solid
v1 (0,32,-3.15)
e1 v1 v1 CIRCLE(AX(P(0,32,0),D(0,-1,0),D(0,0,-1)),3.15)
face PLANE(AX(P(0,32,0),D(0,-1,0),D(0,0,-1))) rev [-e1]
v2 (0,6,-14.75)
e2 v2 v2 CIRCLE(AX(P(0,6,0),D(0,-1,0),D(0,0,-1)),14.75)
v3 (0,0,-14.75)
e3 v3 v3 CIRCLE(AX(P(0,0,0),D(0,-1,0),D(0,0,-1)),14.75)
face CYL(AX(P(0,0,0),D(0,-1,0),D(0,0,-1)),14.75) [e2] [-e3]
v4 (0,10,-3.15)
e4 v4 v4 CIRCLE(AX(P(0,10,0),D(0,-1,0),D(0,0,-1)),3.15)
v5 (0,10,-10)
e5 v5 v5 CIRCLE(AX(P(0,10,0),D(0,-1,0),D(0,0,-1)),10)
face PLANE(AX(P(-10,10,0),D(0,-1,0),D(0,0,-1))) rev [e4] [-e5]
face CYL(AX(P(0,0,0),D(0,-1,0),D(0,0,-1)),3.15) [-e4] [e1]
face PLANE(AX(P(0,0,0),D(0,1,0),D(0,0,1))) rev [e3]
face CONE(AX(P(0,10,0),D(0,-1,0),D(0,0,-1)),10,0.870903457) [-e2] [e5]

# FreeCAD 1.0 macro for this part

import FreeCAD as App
import Part
import Sketcher

V = App.Vector
Q = App.Units.Quantity

doc = App.newDocument("Part")
body = doc.addObject("PartDesign::Body", "Body")

sketch1 = body.newObject("Sketcher::SketchObject", "Sketch")
sketch1.AttachmentSupport = (doc.getObject("XY_Plane"), [""])
sketch1.MapMode = "FlatFace"
sketch1.addGeometry([
    Part.LineSegment(V(0, 0, 0), V(0, 32, 0)),
    Part.LineSegment(V(0, 32, 0), V(-3.1, 32, 0)),
    Part.LineSegment(V(-3.1, 32, 0), V(-3.1, 10, 0)),
    Part.LineSegment(V(-3.1, 10, 0), V(-10, 10, 0)),
    Part.LineSegment(V(-10, 10, 0), V(-14.8, 6, 0)),
    Part.LineSegment(V(-14.8, 6, 0), V(-14.8, 0, 0)),
    Part.LineSegment(V(-14.8, 0, 0), V(0, 0, 0)),
], False)
sketch1.addConstraint([
    Sketcher.Constraint("Coincident", 0, 2, 1, 1),
    Sketcher.Constraint("Coincident", 1, 2, 2, 1),
    Sketcher.Constraint("Coincident", 2, 2, 3, 1),
    Sketcher.Constraint("Coincident", 3, 2, 4, 1),
    Sketcher.Constraint("Coincident", 4, 2, 5, 1),
    Sketcher.Constraint("Coincident", 5, 2, 6, 1),
    Sketcher.Constraint("Coincident", 6, 2, 0, 1),
    Sketcher.Constraint("Vertical", 0),
    Sketcher.Constraint("Horizontal", 1),
    Sketcher.Constraint("Vertical", 2),
    Sketcher.Constraint("Horizontal", 3),
    Sketcher.Constraint("Vertical", 5),
    Sketcher.Constraint("Horizontal", 6),
    Sketcher.Constraint("Coincident", 6, 2, -1, 1),
    Sketcher.Constraint("DistanceY", 0, 1, 0, 2, Q("32 mm")),
    Sketcher.Constraint("DistanceY", 2, 2, 2, 1, Q("22 mm")),
    Sketcher.Constraint("DistanceY", 5, 2, 5, 1, Q("6 mm")),
    Sketcher.Constraint("DistanceX", 3, 2, -1, 1, Q("10 mm")),
    Sketcher.Constraint("DistanceX", 1, 2, 1, 1, Q("3.15 mm")),
    Sketcher.Constraint("DistanceX", 6, 1, 6, 2, Q("14.75 mm")),
])
revolution = body.newObject("PartDesign::Revolution", "Revolution")
revolution.Profile = sketch1
revolution.ReferenceAxis = (sketch1, ["V_Axis"])
revolution.Angle = 360

doc.recompute()
